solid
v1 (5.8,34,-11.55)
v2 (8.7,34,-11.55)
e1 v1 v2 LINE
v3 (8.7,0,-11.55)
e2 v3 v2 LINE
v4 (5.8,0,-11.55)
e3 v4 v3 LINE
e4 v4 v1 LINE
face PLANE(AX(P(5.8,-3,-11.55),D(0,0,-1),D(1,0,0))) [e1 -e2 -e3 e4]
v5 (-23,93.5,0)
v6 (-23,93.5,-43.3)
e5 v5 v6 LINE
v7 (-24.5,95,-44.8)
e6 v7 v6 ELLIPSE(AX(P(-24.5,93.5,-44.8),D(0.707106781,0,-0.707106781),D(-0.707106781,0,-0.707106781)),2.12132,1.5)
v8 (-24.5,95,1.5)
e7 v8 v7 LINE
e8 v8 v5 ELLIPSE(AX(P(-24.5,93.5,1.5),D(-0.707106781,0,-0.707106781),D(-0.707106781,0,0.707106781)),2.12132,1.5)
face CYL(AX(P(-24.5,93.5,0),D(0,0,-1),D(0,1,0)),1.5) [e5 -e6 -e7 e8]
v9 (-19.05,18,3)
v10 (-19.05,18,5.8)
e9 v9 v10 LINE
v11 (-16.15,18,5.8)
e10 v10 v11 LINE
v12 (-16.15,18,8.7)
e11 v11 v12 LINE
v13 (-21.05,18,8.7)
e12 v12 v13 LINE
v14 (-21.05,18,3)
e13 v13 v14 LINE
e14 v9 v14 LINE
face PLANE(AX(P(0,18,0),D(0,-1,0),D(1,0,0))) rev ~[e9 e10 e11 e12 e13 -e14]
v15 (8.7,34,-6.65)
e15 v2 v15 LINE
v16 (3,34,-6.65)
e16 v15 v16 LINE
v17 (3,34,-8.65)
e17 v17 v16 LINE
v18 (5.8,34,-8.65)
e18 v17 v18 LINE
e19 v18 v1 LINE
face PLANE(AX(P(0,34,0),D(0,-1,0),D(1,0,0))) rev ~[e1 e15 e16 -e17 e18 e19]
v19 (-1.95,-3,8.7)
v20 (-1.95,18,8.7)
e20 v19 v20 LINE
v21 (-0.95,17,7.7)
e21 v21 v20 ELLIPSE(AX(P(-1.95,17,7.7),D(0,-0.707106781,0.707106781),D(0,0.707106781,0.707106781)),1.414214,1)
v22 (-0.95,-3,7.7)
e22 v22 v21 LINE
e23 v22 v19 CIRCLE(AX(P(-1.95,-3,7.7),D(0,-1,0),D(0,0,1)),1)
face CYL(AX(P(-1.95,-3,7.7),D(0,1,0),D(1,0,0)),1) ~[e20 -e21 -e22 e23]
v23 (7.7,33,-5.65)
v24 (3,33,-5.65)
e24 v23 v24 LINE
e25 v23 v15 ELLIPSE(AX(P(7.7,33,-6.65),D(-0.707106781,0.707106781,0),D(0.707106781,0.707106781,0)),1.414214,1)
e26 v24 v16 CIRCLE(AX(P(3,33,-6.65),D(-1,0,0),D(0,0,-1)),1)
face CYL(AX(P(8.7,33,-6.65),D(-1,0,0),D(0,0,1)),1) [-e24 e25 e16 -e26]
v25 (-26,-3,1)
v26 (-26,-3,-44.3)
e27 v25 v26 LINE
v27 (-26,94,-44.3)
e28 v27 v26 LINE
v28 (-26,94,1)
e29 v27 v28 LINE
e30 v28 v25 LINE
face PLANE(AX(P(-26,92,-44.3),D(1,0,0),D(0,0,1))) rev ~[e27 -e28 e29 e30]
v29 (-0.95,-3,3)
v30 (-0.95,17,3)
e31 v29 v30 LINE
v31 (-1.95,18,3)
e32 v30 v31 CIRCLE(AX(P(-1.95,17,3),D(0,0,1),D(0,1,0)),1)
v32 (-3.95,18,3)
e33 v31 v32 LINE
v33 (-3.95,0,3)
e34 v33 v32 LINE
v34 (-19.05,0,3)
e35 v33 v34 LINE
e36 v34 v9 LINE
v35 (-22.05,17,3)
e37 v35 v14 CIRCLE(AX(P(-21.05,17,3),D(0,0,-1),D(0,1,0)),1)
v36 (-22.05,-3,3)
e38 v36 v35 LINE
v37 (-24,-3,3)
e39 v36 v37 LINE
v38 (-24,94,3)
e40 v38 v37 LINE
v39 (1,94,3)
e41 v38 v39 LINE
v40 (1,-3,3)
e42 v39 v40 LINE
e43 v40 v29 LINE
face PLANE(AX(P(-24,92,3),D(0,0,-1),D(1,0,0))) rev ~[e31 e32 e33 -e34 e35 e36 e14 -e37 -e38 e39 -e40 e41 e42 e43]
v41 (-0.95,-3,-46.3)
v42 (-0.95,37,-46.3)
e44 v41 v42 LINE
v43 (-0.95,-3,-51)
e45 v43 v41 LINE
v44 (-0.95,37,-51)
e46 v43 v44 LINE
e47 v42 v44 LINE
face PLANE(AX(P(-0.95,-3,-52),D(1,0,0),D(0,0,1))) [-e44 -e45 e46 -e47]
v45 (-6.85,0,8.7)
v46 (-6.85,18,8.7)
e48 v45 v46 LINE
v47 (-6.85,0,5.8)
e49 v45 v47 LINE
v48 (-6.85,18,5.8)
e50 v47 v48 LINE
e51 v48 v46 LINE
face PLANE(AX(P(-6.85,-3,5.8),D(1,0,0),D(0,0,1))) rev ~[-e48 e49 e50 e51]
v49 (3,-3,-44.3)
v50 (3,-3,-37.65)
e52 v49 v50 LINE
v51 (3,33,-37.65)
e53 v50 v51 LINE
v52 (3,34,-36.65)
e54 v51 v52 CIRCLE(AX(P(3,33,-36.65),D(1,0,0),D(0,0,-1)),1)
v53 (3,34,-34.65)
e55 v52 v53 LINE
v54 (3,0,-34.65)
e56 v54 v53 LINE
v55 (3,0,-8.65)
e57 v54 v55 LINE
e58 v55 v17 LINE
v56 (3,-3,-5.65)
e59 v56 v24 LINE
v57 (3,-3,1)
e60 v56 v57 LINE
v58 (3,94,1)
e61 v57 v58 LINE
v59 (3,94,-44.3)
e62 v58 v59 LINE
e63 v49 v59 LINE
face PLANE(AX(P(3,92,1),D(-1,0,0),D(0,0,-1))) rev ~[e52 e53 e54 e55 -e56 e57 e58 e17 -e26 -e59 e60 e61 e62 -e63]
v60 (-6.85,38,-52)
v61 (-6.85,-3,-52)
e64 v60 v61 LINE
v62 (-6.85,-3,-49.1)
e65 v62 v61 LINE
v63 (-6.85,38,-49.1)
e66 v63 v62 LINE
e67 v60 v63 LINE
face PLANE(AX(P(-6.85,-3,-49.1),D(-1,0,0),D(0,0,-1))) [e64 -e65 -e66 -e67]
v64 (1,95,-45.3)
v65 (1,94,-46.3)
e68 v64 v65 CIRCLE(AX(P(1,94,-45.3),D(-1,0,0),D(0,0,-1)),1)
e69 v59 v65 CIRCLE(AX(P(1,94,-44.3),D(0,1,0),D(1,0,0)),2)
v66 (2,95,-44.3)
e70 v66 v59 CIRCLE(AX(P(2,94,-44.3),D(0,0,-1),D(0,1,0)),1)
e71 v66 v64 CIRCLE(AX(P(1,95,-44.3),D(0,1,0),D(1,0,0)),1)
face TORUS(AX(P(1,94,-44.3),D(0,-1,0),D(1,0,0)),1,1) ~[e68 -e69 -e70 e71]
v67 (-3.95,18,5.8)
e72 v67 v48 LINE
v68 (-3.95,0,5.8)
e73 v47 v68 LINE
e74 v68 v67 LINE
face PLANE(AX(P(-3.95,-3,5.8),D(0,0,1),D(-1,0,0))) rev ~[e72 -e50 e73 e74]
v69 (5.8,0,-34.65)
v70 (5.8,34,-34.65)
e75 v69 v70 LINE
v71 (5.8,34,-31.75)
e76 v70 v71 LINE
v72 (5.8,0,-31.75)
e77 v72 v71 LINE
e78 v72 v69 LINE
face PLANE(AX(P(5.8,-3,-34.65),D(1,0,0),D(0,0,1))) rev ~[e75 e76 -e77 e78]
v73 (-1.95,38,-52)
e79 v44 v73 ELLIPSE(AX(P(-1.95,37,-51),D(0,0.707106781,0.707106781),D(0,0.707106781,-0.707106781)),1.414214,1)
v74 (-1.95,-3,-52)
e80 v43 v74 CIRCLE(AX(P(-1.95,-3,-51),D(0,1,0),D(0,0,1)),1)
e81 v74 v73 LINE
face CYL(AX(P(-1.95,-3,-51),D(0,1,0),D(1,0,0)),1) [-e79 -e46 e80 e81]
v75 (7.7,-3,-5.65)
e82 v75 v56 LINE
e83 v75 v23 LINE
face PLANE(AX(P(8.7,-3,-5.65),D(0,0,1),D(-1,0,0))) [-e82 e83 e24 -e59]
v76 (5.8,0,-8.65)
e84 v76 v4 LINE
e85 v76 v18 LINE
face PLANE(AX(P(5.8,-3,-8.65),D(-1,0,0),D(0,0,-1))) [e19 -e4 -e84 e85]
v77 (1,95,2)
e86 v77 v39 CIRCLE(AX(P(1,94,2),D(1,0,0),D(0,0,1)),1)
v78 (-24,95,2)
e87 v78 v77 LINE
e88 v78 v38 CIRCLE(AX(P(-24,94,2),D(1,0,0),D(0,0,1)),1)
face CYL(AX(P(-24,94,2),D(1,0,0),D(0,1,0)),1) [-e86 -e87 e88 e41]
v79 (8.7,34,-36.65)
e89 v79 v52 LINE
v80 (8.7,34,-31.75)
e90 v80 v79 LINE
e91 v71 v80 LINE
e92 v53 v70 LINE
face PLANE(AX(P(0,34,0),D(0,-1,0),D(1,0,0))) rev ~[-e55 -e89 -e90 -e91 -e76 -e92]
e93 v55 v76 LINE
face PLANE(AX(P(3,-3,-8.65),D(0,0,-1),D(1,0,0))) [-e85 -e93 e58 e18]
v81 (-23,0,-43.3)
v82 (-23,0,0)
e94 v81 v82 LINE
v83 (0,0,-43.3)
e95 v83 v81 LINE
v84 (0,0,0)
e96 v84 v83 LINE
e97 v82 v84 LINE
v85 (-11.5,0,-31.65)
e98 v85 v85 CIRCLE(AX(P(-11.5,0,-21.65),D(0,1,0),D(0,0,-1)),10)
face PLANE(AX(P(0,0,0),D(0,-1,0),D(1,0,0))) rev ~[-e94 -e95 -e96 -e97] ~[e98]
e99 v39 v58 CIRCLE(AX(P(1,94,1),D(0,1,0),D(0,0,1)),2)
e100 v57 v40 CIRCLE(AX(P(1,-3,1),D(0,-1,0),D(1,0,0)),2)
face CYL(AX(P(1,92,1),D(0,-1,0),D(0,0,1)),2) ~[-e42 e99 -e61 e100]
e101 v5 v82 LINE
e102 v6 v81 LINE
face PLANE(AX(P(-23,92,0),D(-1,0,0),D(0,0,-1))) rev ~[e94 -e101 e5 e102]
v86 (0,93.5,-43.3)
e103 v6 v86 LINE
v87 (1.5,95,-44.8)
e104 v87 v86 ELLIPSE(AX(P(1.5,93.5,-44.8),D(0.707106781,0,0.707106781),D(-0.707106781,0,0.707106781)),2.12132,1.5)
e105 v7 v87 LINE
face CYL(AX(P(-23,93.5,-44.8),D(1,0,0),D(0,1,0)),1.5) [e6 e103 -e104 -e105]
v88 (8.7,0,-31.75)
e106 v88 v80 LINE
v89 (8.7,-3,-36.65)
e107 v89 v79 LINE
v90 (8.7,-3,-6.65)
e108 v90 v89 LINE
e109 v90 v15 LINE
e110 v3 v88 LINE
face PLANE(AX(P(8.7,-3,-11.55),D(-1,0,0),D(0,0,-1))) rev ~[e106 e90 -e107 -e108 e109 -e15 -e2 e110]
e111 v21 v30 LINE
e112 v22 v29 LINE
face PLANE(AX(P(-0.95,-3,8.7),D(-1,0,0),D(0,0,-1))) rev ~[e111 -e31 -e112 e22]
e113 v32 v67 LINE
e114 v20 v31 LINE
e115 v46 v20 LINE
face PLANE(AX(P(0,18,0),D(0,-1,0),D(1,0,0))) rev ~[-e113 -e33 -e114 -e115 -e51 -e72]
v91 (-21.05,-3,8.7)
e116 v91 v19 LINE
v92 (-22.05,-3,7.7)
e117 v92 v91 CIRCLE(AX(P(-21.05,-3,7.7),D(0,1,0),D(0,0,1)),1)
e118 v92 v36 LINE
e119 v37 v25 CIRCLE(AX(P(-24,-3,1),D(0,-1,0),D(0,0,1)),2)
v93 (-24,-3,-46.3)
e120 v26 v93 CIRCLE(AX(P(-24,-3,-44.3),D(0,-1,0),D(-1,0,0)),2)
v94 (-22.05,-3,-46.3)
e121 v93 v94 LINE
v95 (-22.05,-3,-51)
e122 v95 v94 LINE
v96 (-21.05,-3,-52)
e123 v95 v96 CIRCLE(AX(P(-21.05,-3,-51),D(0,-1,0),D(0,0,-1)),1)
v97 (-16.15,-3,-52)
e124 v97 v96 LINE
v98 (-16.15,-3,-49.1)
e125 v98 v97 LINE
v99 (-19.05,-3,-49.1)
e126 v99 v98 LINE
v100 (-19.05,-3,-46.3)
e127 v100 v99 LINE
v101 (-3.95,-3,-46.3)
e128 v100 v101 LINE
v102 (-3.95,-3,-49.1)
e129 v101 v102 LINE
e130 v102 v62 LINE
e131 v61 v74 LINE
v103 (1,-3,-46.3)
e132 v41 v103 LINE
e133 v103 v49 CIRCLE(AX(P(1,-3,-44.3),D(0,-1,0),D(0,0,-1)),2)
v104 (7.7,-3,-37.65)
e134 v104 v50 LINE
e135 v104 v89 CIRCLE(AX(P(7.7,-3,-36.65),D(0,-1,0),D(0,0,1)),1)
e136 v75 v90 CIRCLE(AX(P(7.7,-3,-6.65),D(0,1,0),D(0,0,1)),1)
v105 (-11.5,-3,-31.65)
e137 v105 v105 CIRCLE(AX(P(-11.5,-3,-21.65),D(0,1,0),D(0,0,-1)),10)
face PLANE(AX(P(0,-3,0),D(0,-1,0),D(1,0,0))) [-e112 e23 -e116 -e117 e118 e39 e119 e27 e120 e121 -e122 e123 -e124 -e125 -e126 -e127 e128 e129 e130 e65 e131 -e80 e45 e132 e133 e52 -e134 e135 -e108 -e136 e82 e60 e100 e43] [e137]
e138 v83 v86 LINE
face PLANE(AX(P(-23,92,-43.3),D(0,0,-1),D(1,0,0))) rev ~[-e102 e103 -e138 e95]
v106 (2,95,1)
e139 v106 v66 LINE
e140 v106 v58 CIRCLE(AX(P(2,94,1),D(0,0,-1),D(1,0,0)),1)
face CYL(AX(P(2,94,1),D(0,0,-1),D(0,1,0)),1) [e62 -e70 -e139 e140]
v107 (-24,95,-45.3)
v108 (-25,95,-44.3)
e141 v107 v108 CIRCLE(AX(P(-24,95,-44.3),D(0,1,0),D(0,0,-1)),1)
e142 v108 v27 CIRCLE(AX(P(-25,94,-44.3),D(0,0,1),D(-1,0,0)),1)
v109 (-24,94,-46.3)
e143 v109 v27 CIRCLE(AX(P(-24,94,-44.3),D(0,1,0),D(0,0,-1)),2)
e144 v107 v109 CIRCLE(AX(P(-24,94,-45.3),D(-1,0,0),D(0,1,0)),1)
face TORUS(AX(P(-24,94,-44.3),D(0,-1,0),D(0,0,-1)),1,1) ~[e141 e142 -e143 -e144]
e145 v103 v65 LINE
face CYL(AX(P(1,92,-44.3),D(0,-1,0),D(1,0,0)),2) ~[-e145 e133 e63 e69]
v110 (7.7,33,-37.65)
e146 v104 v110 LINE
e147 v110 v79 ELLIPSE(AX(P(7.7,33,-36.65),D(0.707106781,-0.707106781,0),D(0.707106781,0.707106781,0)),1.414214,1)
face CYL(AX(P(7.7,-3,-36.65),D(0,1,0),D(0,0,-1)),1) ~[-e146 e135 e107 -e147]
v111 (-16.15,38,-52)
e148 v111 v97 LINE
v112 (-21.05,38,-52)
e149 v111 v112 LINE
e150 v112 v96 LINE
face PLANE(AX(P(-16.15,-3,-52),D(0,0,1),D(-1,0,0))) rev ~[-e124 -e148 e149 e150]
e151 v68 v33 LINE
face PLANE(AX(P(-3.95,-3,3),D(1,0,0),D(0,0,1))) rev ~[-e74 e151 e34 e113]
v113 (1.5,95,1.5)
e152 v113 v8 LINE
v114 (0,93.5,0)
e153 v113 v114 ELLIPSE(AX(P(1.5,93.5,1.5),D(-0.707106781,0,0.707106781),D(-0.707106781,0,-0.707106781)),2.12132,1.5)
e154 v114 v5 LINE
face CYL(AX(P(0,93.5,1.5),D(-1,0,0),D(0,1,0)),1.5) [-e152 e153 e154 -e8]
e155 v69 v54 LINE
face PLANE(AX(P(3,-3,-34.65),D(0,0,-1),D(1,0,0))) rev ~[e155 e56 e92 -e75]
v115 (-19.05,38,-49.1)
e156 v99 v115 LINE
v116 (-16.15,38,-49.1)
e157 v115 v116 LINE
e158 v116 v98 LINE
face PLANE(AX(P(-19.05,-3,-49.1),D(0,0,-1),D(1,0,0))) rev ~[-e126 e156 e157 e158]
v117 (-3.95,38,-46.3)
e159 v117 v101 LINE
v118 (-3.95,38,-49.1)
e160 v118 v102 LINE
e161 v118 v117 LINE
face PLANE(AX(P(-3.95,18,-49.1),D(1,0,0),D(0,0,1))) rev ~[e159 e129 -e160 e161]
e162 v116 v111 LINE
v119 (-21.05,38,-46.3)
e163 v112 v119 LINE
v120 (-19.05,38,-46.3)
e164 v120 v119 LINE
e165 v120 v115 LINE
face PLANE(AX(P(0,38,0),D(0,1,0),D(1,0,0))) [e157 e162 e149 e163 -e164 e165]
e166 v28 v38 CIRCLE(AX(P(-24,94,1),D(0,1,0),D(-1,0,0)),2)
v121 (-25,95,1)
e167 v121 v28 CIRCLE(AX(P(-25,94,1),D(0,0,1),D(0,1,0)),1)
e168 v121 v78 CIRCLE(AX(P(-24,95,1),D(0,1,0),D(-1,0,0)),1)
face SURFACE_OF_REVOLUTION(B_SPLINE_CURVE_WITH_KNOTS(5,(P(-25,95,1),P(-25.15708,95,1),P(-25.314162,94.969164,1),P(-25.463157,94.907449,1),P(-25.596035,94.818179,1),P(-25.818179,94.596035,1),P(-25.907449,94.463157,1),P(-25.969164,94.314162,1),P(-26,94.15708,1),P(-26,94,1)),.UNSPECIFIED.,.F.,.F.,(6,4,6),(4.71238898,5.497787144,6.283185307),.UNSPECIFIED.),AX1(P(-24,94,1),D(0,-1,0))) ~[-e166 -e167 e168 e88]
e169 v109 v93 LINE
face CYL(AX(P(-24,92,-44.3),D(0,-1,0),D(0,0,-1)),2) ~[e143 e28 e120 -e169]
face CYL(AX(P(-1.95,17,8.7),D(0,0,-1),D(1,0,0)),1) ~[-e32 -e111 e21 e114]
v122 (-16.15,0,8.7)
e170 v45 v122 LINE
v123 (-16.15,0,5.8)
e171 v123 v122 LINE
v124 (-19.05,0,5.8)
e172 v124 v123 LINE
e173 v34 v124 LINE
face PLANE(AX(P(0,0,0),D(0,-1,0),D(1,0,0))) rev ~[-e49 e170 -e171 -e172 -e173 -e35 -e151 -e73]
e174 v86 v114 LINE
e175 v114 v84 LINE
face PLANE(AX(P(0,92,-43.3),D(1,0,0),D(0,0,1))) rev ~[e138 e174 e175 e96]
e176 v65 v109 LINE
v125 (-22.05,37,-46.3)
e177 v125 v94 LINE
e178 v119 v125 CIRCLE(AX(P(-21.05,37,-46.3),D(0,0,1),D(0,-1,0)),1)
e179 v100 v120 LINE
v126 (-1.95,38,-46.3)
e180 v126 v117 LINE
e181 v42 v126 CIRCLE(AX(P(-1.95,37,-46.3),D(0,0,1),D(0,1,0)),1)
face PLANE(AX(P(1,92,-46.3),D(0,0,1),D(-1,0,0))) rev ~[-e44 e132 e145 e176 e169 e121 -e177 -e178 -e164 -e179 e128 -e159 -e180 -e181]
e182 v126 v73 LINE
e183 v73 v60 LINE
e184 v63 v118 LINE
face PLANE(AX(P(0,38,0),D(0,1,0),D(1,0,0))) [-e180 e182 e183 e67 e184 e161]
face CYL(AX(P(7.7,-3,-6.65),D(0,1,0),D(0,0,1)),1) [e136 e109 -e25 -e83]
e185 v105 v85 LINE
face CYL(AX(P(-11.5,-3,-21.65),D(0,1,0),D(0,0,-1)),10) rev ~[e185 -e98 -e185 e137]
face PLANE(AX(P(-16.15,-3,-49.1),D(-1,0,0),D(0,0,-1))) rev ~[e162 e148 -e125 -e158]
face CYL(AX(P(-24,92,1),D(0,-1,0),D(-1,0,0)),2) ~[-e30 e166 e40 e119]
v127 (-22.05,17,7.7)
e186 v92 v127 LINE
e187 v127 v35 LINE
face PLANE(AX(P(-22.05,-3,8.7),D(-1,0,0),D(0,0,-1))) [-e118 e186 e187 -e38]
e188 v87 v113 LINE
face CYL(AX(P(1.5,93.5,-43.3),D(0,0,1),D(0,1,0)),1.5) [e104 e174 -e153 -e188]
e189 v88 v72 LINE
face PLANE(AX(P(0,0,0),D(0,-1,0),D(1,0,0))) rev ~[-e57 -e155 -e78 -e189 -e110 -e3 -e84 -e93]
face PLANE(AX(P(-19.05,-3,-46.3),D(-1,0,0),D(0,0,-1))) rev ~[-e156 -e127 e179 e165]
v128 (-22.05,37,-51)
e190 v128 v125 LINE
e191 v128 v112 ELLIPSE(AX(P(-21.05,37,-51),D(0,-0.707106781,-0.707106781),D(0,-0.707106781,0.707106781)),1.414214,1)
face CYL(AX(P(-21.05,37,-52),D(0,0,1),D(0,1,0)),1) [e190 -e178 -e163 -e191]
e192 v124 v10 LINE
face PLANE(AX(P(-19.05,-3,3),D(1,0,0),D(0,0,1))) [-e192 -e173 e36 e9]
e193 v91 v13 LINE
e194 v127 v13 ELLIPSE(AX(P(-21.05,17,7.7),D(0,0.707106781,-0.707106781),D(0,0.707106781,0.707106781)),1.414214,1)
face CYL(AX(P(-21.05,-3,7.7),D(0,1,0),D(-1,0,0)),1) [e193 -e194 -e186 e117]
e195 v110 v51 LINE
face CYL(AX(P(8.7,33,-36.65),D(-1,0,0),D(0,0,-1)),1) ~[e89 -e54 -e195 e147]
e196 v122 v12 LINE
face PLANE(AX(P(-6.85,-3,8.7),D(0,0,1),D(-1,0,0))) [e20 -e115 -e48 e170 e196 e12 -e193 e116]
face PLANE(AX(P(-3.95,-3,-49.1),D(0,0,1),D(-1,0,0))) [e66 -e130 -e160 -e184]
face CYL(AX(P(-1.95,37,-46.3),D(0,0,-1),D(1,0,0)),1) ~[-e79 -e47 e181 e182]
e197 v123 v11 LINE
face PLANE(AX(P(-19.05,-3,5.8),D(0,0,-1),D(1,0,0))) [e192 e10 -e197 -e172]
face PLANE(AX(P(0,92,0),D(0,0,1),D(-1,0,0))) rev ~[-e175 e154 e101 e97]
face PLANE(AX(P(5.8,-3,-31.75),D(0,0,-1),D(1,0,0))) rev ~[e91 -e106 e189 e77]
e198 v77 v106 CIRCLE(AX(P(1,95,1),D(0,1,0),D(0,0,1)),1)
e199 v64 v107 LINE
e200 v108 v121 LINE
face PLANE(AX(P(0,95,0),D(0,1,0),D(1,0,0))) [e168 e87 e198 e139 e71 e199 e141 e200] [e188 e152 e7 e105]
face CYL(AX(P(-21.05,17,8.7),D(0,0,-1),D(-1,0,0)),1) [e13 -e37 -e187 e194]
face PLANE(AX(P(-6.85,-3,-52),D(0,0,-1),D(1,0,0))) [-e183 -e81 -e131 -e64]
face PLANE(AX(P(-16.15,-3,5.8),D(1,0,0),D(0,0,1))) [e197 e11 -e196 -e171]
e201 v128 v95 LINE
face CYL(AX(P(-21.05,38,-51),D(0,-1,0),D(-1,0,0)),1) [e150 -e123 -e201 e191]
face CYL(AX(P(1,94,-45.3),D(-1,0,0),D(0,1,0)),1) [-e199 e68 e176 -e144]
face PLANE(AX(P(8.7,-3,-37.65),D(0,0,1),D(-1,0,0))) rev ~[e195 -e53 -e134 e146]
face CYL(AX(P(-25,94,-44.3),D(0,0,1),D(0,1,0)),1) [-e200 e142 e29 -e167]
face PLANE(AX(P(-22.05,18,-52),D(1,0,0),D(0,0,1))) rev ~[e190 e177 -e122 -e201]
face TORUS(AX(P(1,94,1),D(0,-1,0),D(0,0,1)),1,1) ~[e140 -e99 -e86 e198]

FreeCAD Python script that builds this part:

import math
import FreeCAD as App
import Part
import Sketcher

V = App.Vector
Q = App.Units.Quantity


def edges_at(feature, points):
    """Names of the edges that pass closest to the given points."""
    edges = feature.Shape.Edges
    near = lambda p: min(range(len(edges)), key=lambda i: edges[i].distToShape(Part.Vertex(*p))[0])
    return sorted({f"Edge{near(p) + 1}" for p in points})


def add_polygon(sketch, points):
    """Adds a closed chain of lines whose ends are joined by coincident constraints."""
    first, n = sketch.GeometryCount, len(points)
    for a, b in zip(points, points[1:] + points[:1]):
        sketch.addGeometry(Part.LineSegment(App.Vector(*a, 0), App.Vector(*b, 0)), False)
    for i in range(n):
        sketch.addConstraint(Sketcher.Constraint("Coincident", first + i, 2, first + (i + 1) % n, 1))

doc = App.newDocument("Part")
body = doc.addObject("PartDesign::Body", "Body")

# Sketch on XZ plane
sketch1 = doc.addObject("Sketcher::SketchObject", "Sketch")
body.addObject(sketch1)
sketch1.AttachmentSupport = (doc.XZ_Plane, [""])
sketch1.MapMode = "FlatFace"
sketch1.AttachmentOffset = App.Placement(V(0, 0, -92), App.Rotation())
sketch1.addGeometry(Part.LineSegment(V(-26, -44.3, 0), V(-26, 1, 0)), False)  # 0
sketch1.addGeometry(Part.ArcOfCircle(Part.Circle(V(-24, 1, 0), V(0, 0, 1), 2), math.radians(90), math.radians(180)), False)  # 1
sketch1.addGeometry(Part.LineSegment(V(-24, 3, 0), V(1, 3, 0)), False)  # 2
sketch1.addGeometry(Part.ArcOfCircle(Part.Circle(V(1, 1, 0), V(0, 0, 1), 2), math.radians(0), math.radians(90)), False)  # 3
sketch1.addGeometry(Part.LineSegment(V(3, 1, 0), V(3, -44.3, 0)), False)  # 4
sketch1.addGeometry(Part.ArcOfCircle(Part.Circle(V(1, -44.3, 0), V(0, 0, 1), 2), math.radians(-90), math.radians(0)), False)  # 5
sketch1.addGeometry(Part.LineSegment(V(1, -46.3, 0), V(-24, -46.3, 0)), False)  # 6
sketch1.addGeometry(Part.ArcOfCircle(Part.Circle(V(-24, -44.3, 0), V(0, 0, 1), 2), math.radians(180), math.radians(270)), False)  # 7
add_polygon(sketch1, [(-23, -43.3), (0, -43.3), (0, 0), (-23, 0)])  # lines 8-11
sketch1.addConstraint([
    Sketcher.Constraint("Tangent", 0, 2, 1, 2),
    Sketcher.Constraint("Tangent", 1, 1, 2, 1),
    Sketcher.Constraint("Tangent", 2, 2, 3, 2),
    Sketcher.Constraint("Tangent", 3, 1, 4, 1),
    Sketcher.Constraint("Tangent", 4, 2, 5, 2),
    Sketcher.Constraint("Tangent", 5, 1, 6, 1),
    Sketcher.Constraint("Tangent", 6, 2, 7, 2),
    Sketcher.Constraint("Tangent", 7, 1, 0, 1),
    Sketcher.Constraint("Vertical", 0),
    Sketcher.Constraint("Horizontal", 2),
    Sketcher.Constraint("Vertical", 4),
    Sketcher.Constraint("Horizontal", 6),
    Sketcher.Constraint("Horizontal", 8),
    Sketcher.Constraint("Vertical", 9),
    Sketcher.Constraint("Horizontal", 10),
    Sketcher.Constraint("Vertical", 11),
    Sketcher.Constraint("Coincident", 9, 2, -1, 1),
    Sketcher.Constraint("Equal", 1, 3),
    Sketcher.Constraint("Equal", 3, 5),
    Sketcher.Constraint("Equal", 5, 7),
    Sketcher.Constraint("Radius", 1, Q("2 mm")),
    Sketcher.Constraint("DistanceY", -1, 1, 1, 1, Q("3 mm")),
    Sketcher.Constraint("DistanceX", -1, 1, 3, 1, Q("3 mm")),
    Sketcher.Constraint("DistanceY", 5, 1, 8, 2, Q("3 mm")),
    Sketcher.Constraint("DistanceX", 0, 2, 10, 2, Q("3 mm")),
    Sketcher.Constraint("DistanceX", 2, 1, 2, 2, Q("25 mm")),
    Sketcher.Constraint("DistanceY", 0, 1, 0, 2, Q("45.3 mm")),
])
pad1 = doc.addObject("PartDesign::Pad", "Pad")
body.addObject(pad1)
pad1.Profile = sketch1
pad1.Length = 92

# Sketch on XZ plane
sketch2 = doc.addObject("Sketcher::SketchObject", "Sketch001")
body.addObject(sketch2)
sketch2.AttachmentSupport = (doc.XZ_Plane, [""])
sketch2.MapMode = "FlatFace"
sketch2.addGeometry([
    Part.ArcOfCircle(Part.Circle(V(1, -44.3, 0), V(0, 0, 1), 2), math.radians(-90), math.radians(0)),  # 0
    Part.LineSegment(V(3, -44.3, 0), V(3, 1, 0)),  # 1
    Part.ArcOfCircle(Part.Circle(V(1, 1, 0), V(0, 0, 1), 2), math.radians(0), math.radians(90)),  # 2
    Part.LineSegment(V(1, 3, 0), V(-24, 3, 0)),  # 3
    Part.ArcOfCircle(Part.Circle(V(-24, 1, 0), V(0, 0, 1), 2), math.radians(90), math.radians(180)),  # 4
    Part.LineSegment(V(-26, 1, 0), V(-26, -44.3, 0)),  # 5
    Part.ArcOfCircle(Part.Circle(V(-24, -44.3, 0), V(0, 0, 1), 2), math.radians(180), math.radians(270)),  # 6
    Part.LineSegment(V(-24, -46.3, 0), V(1, -46.3, 0)),  # 7
], False)
sketch2.addConstraint([
    Sketcher.Constraint("Tangent", 0, 2, 1, 1),
    Sketcher.Constraint("Tangent", 1, 2, 2, 1),
    Sketcher.Constraint("Tangent", 2, 2, 3, 1),
    Sketcher.Constraint("Tangent", 3, 2, 4, 1),
    Sketcher.Constraint("Tangent", 4, 2, 5, 1),
    Sketcher.Constraint("Tangent", 5, 2, 6, 1),
    Sketcher.Constraint("Tangent", 6, 2, 7, 1),
    Sketcher.Constraint("Tangent", 7, 2, 0, 1),
    Sketcher.Constraint("Vertical", 1),
    Sketcher.Constraint("Horizontal", 3),
    Sketcher.Constraint("Vertical", 5),
    Sketcher.Constraint("Horizontal", 7),
    Sketcher.Constraint("Equal", 0, 2),
    Sketcher.Constraint("Equal", 2, 4),
    Sketcher.Constraint("Equal", 4, 6),
    Sketcher.Constraint("Radius", 0, Q("2 mm")),
    Sketcher.Constraint("DistanceX", 3, 2, 3, 1, Q("25 mm")),
    Sketcher.Constraint("DistanceY", 1, 1, 1, 2, Q("45.3 mm")),
    Sketcher.Constraint("DistanceX", -1, 1, 0, 3, Q("1 mm")),
    Sketcher.Constraint("DistanceY", -1, 1, 2, 3, Q("1 mm")),
])
pad2 = doc.addObject("PartDesign::Pad", "Pad001")
body.addObject(pad2)
pad2.Profile = sketch2
pad2.Length = 3

# Sketch on XZ plane
sketch3 = doc.addObject("Sketcher::SketchObject", "Sketch002")
body.addObject(sketch3)
sketch3.AttachmentSupport = (doc.XZ_Plane, [""])
sketch3.MapMode = "FlatFace"
sketch3.AttachmentOffset = App.Placement(V(0, 0, 3), App.Rotation())
add_polygon(sketch3, [(3, -5.7), (3, -8.7), (5.8, -8.7), (5.8, -11.6), (8.7, -11.6), (8.7, -5.7)])  # lines 0-5
add_polygon(sketch3, [(3, -34.6), (3, -37.6), (8.7, -37.6), (8.7, -31.8), (5.8, -31.8), (5.8, -34.6)])  # lines 6-11
sketch3.addConstraint([
    Sketcher.Constraint("Vertical", 0),
    Sketcher.Constraint("Horizontal", 1),
    Sketcher.Constraint("Vertical", 2),
    Sketcher.Constraint("Horizontal", 3),
    Sketcher.Constraint("Vertical", 4),
    Sketcher.Constraint("Horizontal", 5),
    Sketcher.Constraint("Vertical", 6),
    Sketcher.Constraint("Horizontal", 7),
    Sketcher.Constraint("Vertical", 8),
    Sketcher.Constraint("Horizontal", 9),
    Sketcher.Constraint("Vertical", 10),
    Sketcher.Constraint("Horizontal", 11),
    Sketcher.Constraint("Vertical", 5, 2, 6, 2),
    Sketcher.Constraint("Vertical", 4, 2, 7, 2),
    Sketcher.Constraint("Vertical", 2, 2, 9, 2),
    Sketcher.Constraint("Equal", 9, 2),
    Sketcher.Constraint("Equal", 0, 6),
    Sketcher.Constraint("Equal", 4, 8),
    Sketcher.Constraint("DistanceX", 1, 1, 1, 2, Q("2.8 mm")),
    Sketcher.Constraint("DistanceX", 3, 1, 3, 2, Q("2.9 mm")),
    Sketcher.Constraint("DistanceY", 4, 1, 4, 2, Q("5.9 mm")),
    Sketcher.Constraint("DistanceX", -1, 1, 0, 2, Q("3 mm")),
    Sketcher.Constraint("DistanceY", 6, 2, 0, 2, Q("29 mm")),
    Sketcher.Constraint("DistanceY", 0, 2, -1, 1, Q("8.65 mm")),
])
pad3 = doc.addObject("PartDesign::Pad", "Pad002")
body.addObject(pad3)
pad3.Profile = sketch3
pad3.Length = 37
pad3.Reversed = True

# Sketch on XZ plane
sketch4 = doc.addObject("Sketcher::SketchObject", "Sketch003")
body.addObject(sketch4)
sketch4.AttachmentSupport = (doc.XZ_Plane, [""])
sketch4.MapMode = "FlatFace"
sketch4.AttachmentOffset = App.Placement(V(0, 0, 3), App.Rotation())
add_polygon(sketch4, [(3, -8.7), (3, -34.6), (5.8, -34.6), (5.8, -31.8), (8.7, -31.8), (8.7, -11.6), (5.8, -11.6), (5.8, -8.7)])  # lines 0-7
sketch4.addConstraint([
    Sketcher.Constraint("Vertical", 0),
    Sketcher.Constraint("Horizontal", 1),
    Sketcher.Constraint("Vertical", 2),
    Sketcher.Constraint("Horizontal", 3),
    Sketcher.Constraint("Vertical", 4),
    Sketcher.Constraint("Horizontal", 5),
    Sketcher.Constraint("Vertical", 6),
    Sketcher.Constraint("Horizontal", 7),
    Sketcher.Constraint("Vertical", 2, 2, 5, 2),
    Sketcher.Constraint("Equal", 5, 2),
    Sketcher.Constraint("Equal", 2, 6),
    Sketcher.Constraint("DistanceY", 0, 2, 0, 1, Q("26 mm")),
    Sketcher.Constraint("DistanceX", 1, 1, 1, 2, Q("2.8 mm")),
    Sketcher.Constraint("DistanceX", 3, 1, 3, 2, Q("2.9 mm")),
    Sketcher.Constraint("DistanceX", -1, 1, 0, 2, Q("3 mm")),
    Sketcher.Constraint("DistanceY", 0, 2, -1, 1, Q("34.65 mm")),
])
pad4 = doc.addObject("PartDesign::Pad", "Pad003")
body.addObject(pad4)
pad4.Profile = sketch4
pad4.Length = 3
pad4.Reversed = True

# Sketch on XZ plane
sketch5 = doc.addObject("Sketcher::SketchObject", "Sketch004")
body.addObject(sketch5)
sketch5.AttachmentSupport = (doc.XZ_Plane, [""])
sketch5.MapMode = "FlatFace"
sketch5.AttachmentOffset = App.Placement(V(0, 0, 3), App.Rotation())
sketch5.addGeometry(Part.Circle(V(-12, -22, 0), V(0, 0, 1), 10), False)
sketch5.addConstraint([
    Sketcher.Constraint("Diameter", 0, Q("20 mm")),
    Sketcher.Constraint("DistanceX", 0, 3, -1, 1, Q("11.5 mm")),
    Sketcher.Constraint("DistanceY", 0, 3, -1, 1, Q("21.65 mm")),
])
doc.recompute()
hole = doc.addObject("PartDesign::Hole", "Hole")
body.addObject(hole)
hole.Profile = sketch5
hole.ThreadType = "None"
hole.Diameter = 20
hole.DepthType = "ThroughAll"

# Sketch on XZ plane
sketch6 = doc.addObject("Sketcher::SketchObject", "Sketch005")
body.addObject(sketch6)
sketch6.AttachmentSupport = (doc.XZ_Plane, [""])
sketch6.MapMode = "FlatFace"
sketch6.AttachmentOffset = App.Placement(V(0, 0, 3), App.Rotation())
add_polygon(sketch6, [(-22.1, 3), (-19.1, 3), (-19.1, 5.8), (-16.1, 5.8), (-16.1, 8.7), (-22.1, 8.7)])  # lines 0-5
add_polygon(sketch6, [(-4, 3), (-0.9, 3), (-0.9, 8.7), (-6.8, 8.7), (-6.8, 5.8), (-4, 5.8)])  # lines 6-11
add_polygon(sketch6, [(-0.9, -52), (-0.9, -46.3), (-4, -46.3), (-4, -49.1), (-6.8, -49.1), (-6.8, -52)])  # lines 12-17
add_polygon(sketch6, [(-19.1, -49.1), (-19.1, -46.3), (-22.1, -46.3), (-22.1, -52), (-16.1, -52), (-16.1, -49.1)])  # lines 18-23
sketch6.addConstraint([
    Sketcher.Constraint("Horizontal", 0),
    Sketcher.Constraint("Vertical", 1),
    Sketcher.Constraint("Horizontal", 2),
    Sketcher.Constraint("Vertical", 3),
    Sketcher.Constraint("Horizontal", 4),
    Sketcher.Constraint("Vertical", 5),
    Sketcher.Constraint("Horizontal", 6),
    Sketcher.Constraint("Vertical", 7),
    Sketcher.Constraint("Horizontal", 8),
    Sketcher.Constraint("Vertical", 9),
    Sketcher.Constraint("Horizontal", 10),
    Sketcher.Constraint("Vertical", 11),
    Sketcher.Constraint("Vertical", 12),
    Sketcher.Constraint("Horizontal", 13),
    Sketcher.Constraint("Vertical", 14),
    Sketcher.Constraint("Horizontal", 15),
    Sketcher.Constraint("Vertical", 16),
    Sketcher.Constraint("Horizontal", 17),
    Sketcher.Constraint("Vertical", 18),
    Sketcher.Constraint("Horizontal", 19),
    Sketcher.Constraint("Vertical", 20),
    Sketcher.Constraint("Horizontal", 21),
    Sketcher.Constraint("Vertical", 22),
    Sketcher.Constraint("Horizontal", 23),
    Sketcher.Constraint("Horizontal", 5, 2, 6, 2),
    Sketcher.Constraint("Horizontal", 4, 2, 7, 2),
    Sketcher.Constraint("Horizontal", 2, 2, 9, 2),
    Sketcher.Constraint("Horizontal", 13, 2, 18, 2),
    Sketcher.Constraint("Horizontal", 17, 2, 20, 2),
    Sketcher.Constraint("Horizontal", 15, 2, 22, 2),
    Sketcher.Constraint("Vertical", 7, 2, 12, 2),
    Sketcher.Constraint("Vertical", 11, 2, 13, 2),
    Sketcher.Constraint("Vertical", 9, 2, 15, 2),
    Sketcher.Constraint("Vertical", 1, 2, 18, 2),
    Sketcher.Constraint("Vertical", 5, 2, 19, 2),
    Sketcher.Constraint("Vertical", 3, 2, 21, 2),
    Sketcher.Constraint("Equal", 0, 6),
    Sketcher.Constraint("Equal", 4, 8),
    Sketcher.Constraint("Equal", 23, 3),
    Sketcher.Constraint("Equal", 7, 12),
    Sketcher.Constraint("Equal", 11, 14),
    Sketcher.Constraint("DistanceX", 2, 1, 2, 2, Q("2.9 mm")),
    Sketcher.Constraint("DistanceX", 4, 2, 4, 1, Q("5.9 mm")),
    Sketcher.Constraint("DistanceY", 1, 1, 1, 2, Q("2.8 mm")),
    Sketcher.Constraint("DistanceY", -1, 1, 0, 2, Q("3 mm")),
    Sketcher.Constraint("DistanceY", 16, 2, -1, 1, Q("52 mm")),
    Sketcher.Constraint("DistanceX", 2, 2, 6, 2, Q("15.2 mm")),
    Sketcher.Constraint("DistanceX", 0, 2, -1, 1, Q("19.05 mm")),
])
pad5 = doc.addObject("PartDesign::Pad", "Pad004")
body.addObject(pad5)
pad5.Profile = sketch6
pad5.Length = 21
pad5.Reversed = True

# Sketch on XZ plane
sketch7 = doc.addObject("Sketcher::SketchObject", "Sketch006")
body.addObject(sketch7)
sketch7.AttachmentSupport = (doc.XZ_Plane, [""])
sketch7.MapMode = "FlatFace"
sketch7.AttachmentOffset = App.Placement(V(0, 0, 3), App.Rotation())
add_polygon(sketch7, [(-6.8, 5.8), (-6.8, 8.7), (-16.1, 8.7), (-16.1, 5.8), (-19.1, 5.8), (-19.1, 3), (-4, 3), (-4, 5.8)])  # lines 0-7
sketch7.addConstraint([
    Sketcher.Constraint("Vertical", 0),
    Sketcher.Constraint("Horizontal", 1),
    Sketcher.Constraint("Vertical", 2),
    Sketcher.Constraint("Horizontal", 3),
    Sketcher.Constraint("Vertical", 4),
    Sketcher.Constraint("Horizontal", 5),
    Sketcher.Constraint("Vertical", 6),
    Sketcher.Constraint("Horizontal", 7),
    Sketcher.Constraint("Horizontal", 3, 2, 6, 2),
    Sketcher.Constraint("Equal", 3, 7),
    Sketcher.Constraint("Equal", 7, 0),
    Sketcher.Constraint("DistanceX", 1, 2, 1, 1, Q("9.3 mm")),
    Sketcher.Constraint("DistanceX", 3, 2, 3, 1, Q("2.9 mm")),
    Sketcher.Constraint("DistanceY", 4, 2, 4, 1, Q("2.8 mm")),
    Sketcher.Constraint("DistanceY", -1, 1, 4, 2, Q("3 mm")),
    Sketcher.Constraint("DistanceX", 0, 2, -1, 1, Q("6.85 mm")),
])
pad6 = doc.addObject("PartDesign::Pad", "Pad005")
body.addObject(pad6)
pad6.Profile = sketch7
pad6.Length = 3
pad6.Reversed = True

# Sketch on XZ plane
sketch8 = doc.addObject("Sketcher::SketchObject", "Sketch007")
body.addObject(sketch8)
sketch8.AttachmentSupport = (doc.XZ_Plane, [""])
sketch8.MapMode = "FlatFace"
sketch8.AttachmentOffset = App.Placement(V(0, 0, -92), App.Rotation())
sketch8.addGeometry(Part.ArcOfCircle(Part.Circle(V(1, 1, 0), V(0, 0, 1), 2), math.radians(0), math.radians(90)), False)  # 0
sketch8.addGeometry(Part.LineSegment(V(3, 1, 0), V(3, -44.3, 0)), False)  # 1
sketch8.addGeometry(Part.ArcOfCircle(Part.Circle(V(1, -44.3, 0), V(0, 0, 1), 2), math.radians(-90), math.radians(0)), False)  # 2
sketch8.addGeometry(Part.LineSegment(V(1, -46.3, 0), V(-24, -46.3, 0)), False)  # 3
sketch8.addGeometry(Part.ArcOfCircle(Part.Circle(V(-24, -44.3, 0), V(0, 0, 1), 2), math.radians(180), math.radians(270)), False)  # 4
sketch8.addGeometry(Part.LineSegment(V(-26, -44.3, 0), V(-26, 1, 0)), False)  # 5
sketch8.addGeometry(Part.ArcOfCircle(Part.Circle(V(-24, 1, 0), V(0, 0, 1), 2), math.radians(90), math.radians(180)), False)  # 6
sketch8.addGeometry(Part.LineSegment(V(-24, 3, 0), V(1, 3, 0)), False)  # 7
add_polygon(sketch8, [(-23, -43.3), (0, -43.3), (0, 0), (-23, 0)])  # lines 8-11
sketch8.addConstraint([
    Sketcher.Constraint("Tangent", 0, 1, 1, 1),
    Sketcher.Constraint("Tangent", 1, 2, 2, 2),
    Sketcher.Constraint("Tangent", 2, 1, 3, 1),
    Sketcher.Constraint("Tangent", 3, 2, 4, 2),
    Sketcher.Constraint("Tangent", 4, 1, 5, 1),
    Sketcher.Constraint("Tangent", 5, 2, 6, 2),
    Sketcher.Constraint("Tangent", 6, 1, 7, 1),
    Sketcher.Constraint("Tangent", 7, 2, 0, 2),
    Sketcher.Constraint("Vertical", 1),
    Sketcher.Constraint("Horizontal", 3),
    Sketcher.Constraint("Vertical", 5),
    Sketcher.Constraint("Horizontal", 7),
    Sketcher.Constraint("Horizontal", 8),
    Sketcher.Constraint("Vertical", 9),
    Sketcher.Constraint("Horizontal", 10),
    Sketcher.Constraint("Vertical", 11),
    Sketcher.Constraint("Coincident", 9, 2, -1, 1),
    Sketcher.Constraint("Equal", 0, 2),
    Sketcher.Constraint("Equal", 2, 4),
    Sketcher.Constraint("Equal", 4, 6),
    Sketcher.Constraint("Radius", 0, Q("2 mm")),
    Sketcher.Constraint("DistanceX", 3, 2, 3, 1, Q("25 mm")),
    Sketcher.Constraint("DistanceX", 8, 1, 8, 2, Q("23 mm")),
    Sketcher.Constraint("DistanceY", 1, 2, 1, 1, Q("45.3 mm")),
    Sketcher.Constraint("DistanceY", 9, 1, 9, 2, Q("43.3 mm")),
    Sketcher.Constraint("DistanceX", -1, 1, 0, 3, Q("1 mm")),
    Sketcher.Constraint("DistanceY", -1, 1, 0, 3, Q("1 mm")),
])
pad7 = doc.addObject("PartDesign::Pad", "Pad006")
body.addObject(pad7)
pad7.Profile = sketch8
pad7.Length = 3
pad7.Reversed = True
doc.recompute()

fillet = doc.addObject("PartDesign::Fillet", "Fillet")
body.addObject(fillet)
fillet.Base = (pad7, edges_at(pad7, [
    (-11.5, 95, 0),
    (0, 95, -21.65),
    (-23, 95, -21.65),
    (-11.5, 95, -43.3),
]))
fillet.Radius = 1.5
doc.recompute()

fillet2 = doc.addObject("PartDesign::Fillet", "Fillet001")
body.addObject(fillet2)
fillet2.Base = (fillet, edges_at(fillet, [
    (2.414, 95, 2.414),
    (3, 95, -21.65),
    (2.414, 95, -45.714),
    (-11.5, 95, -46.3),
    (-25.414, 95, -45.714),
    (-26, 95, -21.65),
    (-25.414, 95, 2.414),
    (-11.5, 95, 3),
]))
fillet2.Radius = 1

# Sketch on XZ plane
sketch9 = doc.addObject("Sketcher::SketchObject", "Sketch008")
body.addObject(sketch9)
sketch9.AttachmentSupport = (doc.XZ_Plane, [""])
sketch9.MapMode = "FlatFace"
sketch9.AttachmentOffset = App.Placement(V(0, 0, -18), App.Rotation())
add_polygon(sketch9, [(-4, -46.3), (-0.9, -46.3), (-0.9, -52), (-6.8, -52), (-6.8, -49.1), (-4, -49.1)])  # lines 0-5
add_polygon(sketch9, [(-19.1, -49.1), (-16.1, -49.1), (-16.1, -52), (-22.1, -52), (-22.1, -46.3), (-19.1, -46.3)])  # lines 6-11
sketch9.addConstraint([
    Sketcher.Constraint("Horizontal", 0),
    Sketcher.Constraint("Vertical", 1),
    Sketcher.Constraint("Horizontal", 2),
    Sketcher.Constraint("Vertical", 3),
    Sketcher.Constraint("Horizontal", 4),
    Sketcher.Constraint("Vertical", 5),
    Sketcher.Constraint("Horizontal", 6),
    Sketcher.Constraint("Vertical", 7),
    Sketcher.Constraint("Horizontal", 8),
    Sketcher.Constraint("Vertical", 9),
    Sketcher.Constraint("Horizontal", 10),
    Sketcher.Constraint("Vertical", 11),
    Sketcher.Constraint("Horizontal", 4, 2, 6, 2),
    Sketcher.Constraint("Horizontal", 2, 2, 7, 2),
    Sketcher.Constraint("Horizontal", 5, 2, 9, 2),
    Sketcher.Constraint("Equal", 4, 6),
    Sketcher.Constraint("Equal", 2, 8),
    Sketcher.Constraint("Equal", 6, 3),
    Sketcher.Constraint("DistanceX", 0, 1, 0, 2, Q("3 mm")),
    Sketcher.Constraint("DistanceX", 2, 2, 2, 1, Q("5.9 mm")),
    Sketcher.Constraint("DistanceY", 1, 2, 1, 1, Q("5.7 mm")),
    Sketcher.Constraint("DistanceY", 1, 2, -1, 1, Q("52 mm")),
    Sketcher.Constraint("DistanceX", 6, 2, 3, 2, Q("9.3 mm")),
    Sketcher.Constraint("DistanceX", 0, 2, -1, 1, Q("0.95 mm")),
])
pad8 = doc.addObject("PartDesign::Pad", "Pad007")
body.addObject(pad8)
pad8.Profile = sketch9
pad8.Length = 20
pad8.Reversed = True
doc.recompute()

fillet3 = doc.addObject("PartDesign::Fillet", "Fillet002")
body.addObject(fillet3)
fillet3.Base = (pad8, edges_at(pad8, [
    (8.7, 15.5, -37.65),
    (8.7, 15.5, -5.65),
    (-0.95, 7.5, 8.7),
    (-22.05, 7.5, 8.7),
    (5.85, 34, -37.65),
    (5.85, 34, -5.65),
    (-0.95, 18, 5.85),
    (-22.05, 18, 5.85),
    (-0.95, 17.5, -52),
    (-0.95, 38, -49.15),
    (-22.05, 17.5, -52),
    (-22.05, 38, -49.15),
]))
fillet3.Radius = 1

doc.recompute()
